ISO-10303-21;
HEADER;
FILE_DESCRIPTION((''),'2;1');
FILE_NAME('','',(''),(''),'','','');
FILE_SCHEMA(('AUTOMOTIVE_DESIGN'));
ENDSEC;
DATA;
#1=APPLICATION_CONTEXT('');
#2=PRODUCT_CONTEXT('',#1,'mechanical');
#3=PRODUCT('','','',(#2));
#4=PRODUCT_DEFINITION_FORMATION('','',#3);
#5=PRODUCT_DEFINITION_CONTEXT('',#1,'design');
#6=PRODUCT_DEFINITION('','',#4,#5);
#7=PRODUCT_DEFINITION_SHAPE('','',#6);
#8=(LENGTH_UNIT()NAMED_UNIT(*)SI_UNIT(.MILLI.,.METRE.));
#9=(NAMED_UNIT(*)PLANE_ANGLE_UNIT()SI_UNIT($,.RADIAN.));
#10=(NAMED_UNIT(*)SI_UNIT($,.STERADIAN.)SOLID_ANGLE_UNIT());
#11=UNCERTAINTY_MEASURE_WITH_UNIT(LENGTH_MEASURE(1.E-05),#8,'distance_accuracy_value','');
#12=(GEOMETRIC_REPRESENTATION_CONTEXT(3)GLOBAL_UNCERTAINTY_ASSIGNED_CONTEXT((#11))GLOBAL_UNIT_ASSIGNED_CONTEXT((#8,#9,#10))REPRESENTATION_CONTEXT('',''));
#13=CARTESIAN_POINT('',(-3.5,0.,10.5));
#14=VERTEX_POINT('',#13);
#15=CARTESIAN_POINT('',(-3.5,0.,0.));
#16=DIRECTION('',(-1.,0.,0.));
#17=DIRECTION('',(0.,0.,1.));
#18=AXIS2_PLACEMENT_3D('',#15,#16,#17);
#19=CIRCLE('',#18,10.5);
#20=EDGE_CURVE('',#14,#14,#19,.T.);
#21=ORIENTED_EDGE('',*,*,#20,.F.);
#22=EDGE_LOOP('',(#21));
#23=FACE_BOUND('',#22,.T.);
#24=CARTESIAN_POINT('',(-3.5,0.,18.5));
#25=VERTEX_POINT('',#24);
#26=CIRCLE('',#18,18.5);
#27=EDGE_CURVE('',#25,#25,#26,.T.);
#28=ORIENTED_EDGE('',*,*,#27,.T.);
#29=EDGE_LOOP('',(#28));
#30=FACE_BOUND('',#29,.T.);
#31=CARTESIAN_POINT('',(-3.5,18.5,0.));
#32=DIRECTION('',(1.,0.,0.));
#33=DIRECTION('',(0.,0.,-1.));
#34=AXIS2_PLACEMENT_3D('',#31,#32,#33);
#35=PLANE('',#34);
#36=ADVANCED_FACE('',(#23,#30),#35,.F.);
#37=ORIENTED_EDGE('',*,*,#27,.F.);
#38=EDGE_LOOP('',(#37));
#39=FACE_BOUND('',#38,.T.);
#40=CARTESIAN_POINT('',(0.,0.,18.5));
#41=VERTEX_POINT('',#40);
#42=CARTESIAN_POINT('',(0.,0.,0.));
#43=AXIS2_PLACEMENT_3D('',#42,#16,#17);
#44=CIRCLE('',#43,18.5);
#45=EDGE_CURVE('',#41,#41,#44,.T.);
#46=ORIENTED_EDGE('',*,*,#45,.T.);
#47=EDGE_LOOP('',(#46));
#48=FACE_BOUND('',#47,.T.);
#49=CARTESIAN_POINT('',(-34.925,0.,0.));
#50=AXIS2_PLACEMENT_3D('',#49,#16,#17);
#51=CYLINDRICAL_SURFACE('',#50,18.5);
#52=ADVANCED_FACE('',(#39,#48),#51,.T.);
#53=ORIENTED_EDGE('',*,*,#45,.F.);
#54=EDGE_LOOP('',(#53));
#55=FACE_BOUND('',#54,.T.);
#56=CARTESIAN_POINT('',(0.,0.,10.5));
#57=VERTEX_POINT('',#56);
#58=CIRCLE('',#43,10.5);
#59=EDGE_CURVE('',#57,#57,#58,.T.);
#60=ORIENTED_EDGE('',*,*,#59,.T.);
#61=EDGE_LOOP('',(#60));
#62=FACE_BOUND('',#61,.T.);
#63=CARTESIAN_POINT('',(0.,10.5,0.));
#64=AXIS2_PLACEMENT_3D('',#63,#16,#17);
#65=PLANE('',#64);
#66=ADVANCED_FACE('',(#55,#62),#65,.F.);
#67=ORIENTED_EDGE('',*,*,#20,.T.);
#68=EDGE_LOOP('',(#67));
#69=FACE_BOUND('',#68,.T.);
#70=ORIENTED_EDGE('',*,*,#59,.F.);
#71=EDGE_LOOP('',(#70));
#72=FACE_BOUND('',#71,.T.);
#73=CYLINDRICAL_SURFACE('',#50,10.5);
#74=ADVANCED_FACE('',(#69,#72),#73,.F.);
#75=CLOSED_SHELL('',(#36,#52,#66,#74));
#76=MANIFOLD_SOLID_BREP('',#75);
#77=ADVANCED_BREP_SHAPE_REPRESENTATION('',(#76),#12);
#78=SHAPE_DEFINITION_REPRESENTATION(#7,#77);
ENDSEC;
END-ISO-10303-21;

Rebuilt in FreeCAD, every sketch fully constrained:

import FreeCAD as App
import Part
import Sketcher
Q = App.Units.Quantity

doc = App.newDocument("Part")
params = doc.addObject("Spreadsheet::Sheet", "Params")
for row, (alias, value) in enumerate([
    ("sketch1_height", "8 mm"),
    ("sketch1_width", "3.5 mm"),
    ("revolution_angle", "360 deg"),
], start=1):
    params.set(f"A{row}", alias)
    params.set(f"B{row}", "=" + value)
    params.setAlias(f"B{row}", alias)

body = doc.addObject("PartDesign::Body", "Body")

# Sketch on XY plane
sketch1 = body.newObject("Sketcher::SketchObject", "Sketch")
sketch1.AttachmentSupport = (doc.getObject("XY_Plane"), [""])
sketch1.MapMode = "FlatFace"
sketch1.addGeometry(Part.LineSegment(App.Vector(-3.5, 18.5, 0), App.Vector(-3.5, 10.5, 0)), False)
sketch1.addGeometry(Part.LineSegment(App.Vector(-3.5, 10.5, 0), App.Vector(0, 10.5, 0)), False)
sketch1.addGeometry(Part.LineSegment(App.Vector(0, 10.5, 0), App.Vector(0, 18.5, 0)), False)
sketch1.addGeometry(Part.LineSegment(App.Vector(0, 18.5, 0), App.Vector(-3.5, 18.5, 0)), False)
sketch1.addConstraint(Sketcher.Constraint("Coincident", 0, 2, 1, 1))
sketch1.addConstraint(Sketcher.Constraint("Coincident", 1, 2, 2, 1))
sketch1.addConstraint(Sketcher.Constraint("Coincident", 2, 2, 3, 1))
sketch1.addConstraint(Sketcher.Constraint("Coincident", 3, 2, 0, 1))
sketch1.addConstraint(Sketcher.Constraint("Vertical", 0))
sketch1.addConstraint(Sketcher.Constraint("Horizontal", 1))
sketch1.addConstraint(Sketcher.Constraint("Vertical", 2))
sketch1.addConstraint(Sketcher.Constraint("Horizontal", 3))
sketch1.addConstraint(Sketcher.Constraint("PointOnObject", 1, 2, -2))
sketch1.addConstraint(Sketcher.Constraint("DistanceY", 0, 2, 0, 1, Q("8 mm")))
sketch1.addConstraint(Sketcher.Constraint("DistanceX", 1, 1, 1, 2, Q("3.5 mm")))
sketch1.addConstraint(Sketcher.Constraint("DistanceY", -1, 1, 0, 2, Q("10.5 mm")))
sketch1.setExpression("Constraints[9]", "Params.sketch1_height")
sketch1.setExpression("Constraints[10]", "Params.sketch1_width")
revolution = body.newObject("PartDesign::Revolution", "Revolution")
revolution.Profile = sketch1
revolution.ReferenceAxis = (sketch1, ["H_Axis"])
revolution.setExpression("Angle", "Params.revolution_angle")

doc.recompute()
